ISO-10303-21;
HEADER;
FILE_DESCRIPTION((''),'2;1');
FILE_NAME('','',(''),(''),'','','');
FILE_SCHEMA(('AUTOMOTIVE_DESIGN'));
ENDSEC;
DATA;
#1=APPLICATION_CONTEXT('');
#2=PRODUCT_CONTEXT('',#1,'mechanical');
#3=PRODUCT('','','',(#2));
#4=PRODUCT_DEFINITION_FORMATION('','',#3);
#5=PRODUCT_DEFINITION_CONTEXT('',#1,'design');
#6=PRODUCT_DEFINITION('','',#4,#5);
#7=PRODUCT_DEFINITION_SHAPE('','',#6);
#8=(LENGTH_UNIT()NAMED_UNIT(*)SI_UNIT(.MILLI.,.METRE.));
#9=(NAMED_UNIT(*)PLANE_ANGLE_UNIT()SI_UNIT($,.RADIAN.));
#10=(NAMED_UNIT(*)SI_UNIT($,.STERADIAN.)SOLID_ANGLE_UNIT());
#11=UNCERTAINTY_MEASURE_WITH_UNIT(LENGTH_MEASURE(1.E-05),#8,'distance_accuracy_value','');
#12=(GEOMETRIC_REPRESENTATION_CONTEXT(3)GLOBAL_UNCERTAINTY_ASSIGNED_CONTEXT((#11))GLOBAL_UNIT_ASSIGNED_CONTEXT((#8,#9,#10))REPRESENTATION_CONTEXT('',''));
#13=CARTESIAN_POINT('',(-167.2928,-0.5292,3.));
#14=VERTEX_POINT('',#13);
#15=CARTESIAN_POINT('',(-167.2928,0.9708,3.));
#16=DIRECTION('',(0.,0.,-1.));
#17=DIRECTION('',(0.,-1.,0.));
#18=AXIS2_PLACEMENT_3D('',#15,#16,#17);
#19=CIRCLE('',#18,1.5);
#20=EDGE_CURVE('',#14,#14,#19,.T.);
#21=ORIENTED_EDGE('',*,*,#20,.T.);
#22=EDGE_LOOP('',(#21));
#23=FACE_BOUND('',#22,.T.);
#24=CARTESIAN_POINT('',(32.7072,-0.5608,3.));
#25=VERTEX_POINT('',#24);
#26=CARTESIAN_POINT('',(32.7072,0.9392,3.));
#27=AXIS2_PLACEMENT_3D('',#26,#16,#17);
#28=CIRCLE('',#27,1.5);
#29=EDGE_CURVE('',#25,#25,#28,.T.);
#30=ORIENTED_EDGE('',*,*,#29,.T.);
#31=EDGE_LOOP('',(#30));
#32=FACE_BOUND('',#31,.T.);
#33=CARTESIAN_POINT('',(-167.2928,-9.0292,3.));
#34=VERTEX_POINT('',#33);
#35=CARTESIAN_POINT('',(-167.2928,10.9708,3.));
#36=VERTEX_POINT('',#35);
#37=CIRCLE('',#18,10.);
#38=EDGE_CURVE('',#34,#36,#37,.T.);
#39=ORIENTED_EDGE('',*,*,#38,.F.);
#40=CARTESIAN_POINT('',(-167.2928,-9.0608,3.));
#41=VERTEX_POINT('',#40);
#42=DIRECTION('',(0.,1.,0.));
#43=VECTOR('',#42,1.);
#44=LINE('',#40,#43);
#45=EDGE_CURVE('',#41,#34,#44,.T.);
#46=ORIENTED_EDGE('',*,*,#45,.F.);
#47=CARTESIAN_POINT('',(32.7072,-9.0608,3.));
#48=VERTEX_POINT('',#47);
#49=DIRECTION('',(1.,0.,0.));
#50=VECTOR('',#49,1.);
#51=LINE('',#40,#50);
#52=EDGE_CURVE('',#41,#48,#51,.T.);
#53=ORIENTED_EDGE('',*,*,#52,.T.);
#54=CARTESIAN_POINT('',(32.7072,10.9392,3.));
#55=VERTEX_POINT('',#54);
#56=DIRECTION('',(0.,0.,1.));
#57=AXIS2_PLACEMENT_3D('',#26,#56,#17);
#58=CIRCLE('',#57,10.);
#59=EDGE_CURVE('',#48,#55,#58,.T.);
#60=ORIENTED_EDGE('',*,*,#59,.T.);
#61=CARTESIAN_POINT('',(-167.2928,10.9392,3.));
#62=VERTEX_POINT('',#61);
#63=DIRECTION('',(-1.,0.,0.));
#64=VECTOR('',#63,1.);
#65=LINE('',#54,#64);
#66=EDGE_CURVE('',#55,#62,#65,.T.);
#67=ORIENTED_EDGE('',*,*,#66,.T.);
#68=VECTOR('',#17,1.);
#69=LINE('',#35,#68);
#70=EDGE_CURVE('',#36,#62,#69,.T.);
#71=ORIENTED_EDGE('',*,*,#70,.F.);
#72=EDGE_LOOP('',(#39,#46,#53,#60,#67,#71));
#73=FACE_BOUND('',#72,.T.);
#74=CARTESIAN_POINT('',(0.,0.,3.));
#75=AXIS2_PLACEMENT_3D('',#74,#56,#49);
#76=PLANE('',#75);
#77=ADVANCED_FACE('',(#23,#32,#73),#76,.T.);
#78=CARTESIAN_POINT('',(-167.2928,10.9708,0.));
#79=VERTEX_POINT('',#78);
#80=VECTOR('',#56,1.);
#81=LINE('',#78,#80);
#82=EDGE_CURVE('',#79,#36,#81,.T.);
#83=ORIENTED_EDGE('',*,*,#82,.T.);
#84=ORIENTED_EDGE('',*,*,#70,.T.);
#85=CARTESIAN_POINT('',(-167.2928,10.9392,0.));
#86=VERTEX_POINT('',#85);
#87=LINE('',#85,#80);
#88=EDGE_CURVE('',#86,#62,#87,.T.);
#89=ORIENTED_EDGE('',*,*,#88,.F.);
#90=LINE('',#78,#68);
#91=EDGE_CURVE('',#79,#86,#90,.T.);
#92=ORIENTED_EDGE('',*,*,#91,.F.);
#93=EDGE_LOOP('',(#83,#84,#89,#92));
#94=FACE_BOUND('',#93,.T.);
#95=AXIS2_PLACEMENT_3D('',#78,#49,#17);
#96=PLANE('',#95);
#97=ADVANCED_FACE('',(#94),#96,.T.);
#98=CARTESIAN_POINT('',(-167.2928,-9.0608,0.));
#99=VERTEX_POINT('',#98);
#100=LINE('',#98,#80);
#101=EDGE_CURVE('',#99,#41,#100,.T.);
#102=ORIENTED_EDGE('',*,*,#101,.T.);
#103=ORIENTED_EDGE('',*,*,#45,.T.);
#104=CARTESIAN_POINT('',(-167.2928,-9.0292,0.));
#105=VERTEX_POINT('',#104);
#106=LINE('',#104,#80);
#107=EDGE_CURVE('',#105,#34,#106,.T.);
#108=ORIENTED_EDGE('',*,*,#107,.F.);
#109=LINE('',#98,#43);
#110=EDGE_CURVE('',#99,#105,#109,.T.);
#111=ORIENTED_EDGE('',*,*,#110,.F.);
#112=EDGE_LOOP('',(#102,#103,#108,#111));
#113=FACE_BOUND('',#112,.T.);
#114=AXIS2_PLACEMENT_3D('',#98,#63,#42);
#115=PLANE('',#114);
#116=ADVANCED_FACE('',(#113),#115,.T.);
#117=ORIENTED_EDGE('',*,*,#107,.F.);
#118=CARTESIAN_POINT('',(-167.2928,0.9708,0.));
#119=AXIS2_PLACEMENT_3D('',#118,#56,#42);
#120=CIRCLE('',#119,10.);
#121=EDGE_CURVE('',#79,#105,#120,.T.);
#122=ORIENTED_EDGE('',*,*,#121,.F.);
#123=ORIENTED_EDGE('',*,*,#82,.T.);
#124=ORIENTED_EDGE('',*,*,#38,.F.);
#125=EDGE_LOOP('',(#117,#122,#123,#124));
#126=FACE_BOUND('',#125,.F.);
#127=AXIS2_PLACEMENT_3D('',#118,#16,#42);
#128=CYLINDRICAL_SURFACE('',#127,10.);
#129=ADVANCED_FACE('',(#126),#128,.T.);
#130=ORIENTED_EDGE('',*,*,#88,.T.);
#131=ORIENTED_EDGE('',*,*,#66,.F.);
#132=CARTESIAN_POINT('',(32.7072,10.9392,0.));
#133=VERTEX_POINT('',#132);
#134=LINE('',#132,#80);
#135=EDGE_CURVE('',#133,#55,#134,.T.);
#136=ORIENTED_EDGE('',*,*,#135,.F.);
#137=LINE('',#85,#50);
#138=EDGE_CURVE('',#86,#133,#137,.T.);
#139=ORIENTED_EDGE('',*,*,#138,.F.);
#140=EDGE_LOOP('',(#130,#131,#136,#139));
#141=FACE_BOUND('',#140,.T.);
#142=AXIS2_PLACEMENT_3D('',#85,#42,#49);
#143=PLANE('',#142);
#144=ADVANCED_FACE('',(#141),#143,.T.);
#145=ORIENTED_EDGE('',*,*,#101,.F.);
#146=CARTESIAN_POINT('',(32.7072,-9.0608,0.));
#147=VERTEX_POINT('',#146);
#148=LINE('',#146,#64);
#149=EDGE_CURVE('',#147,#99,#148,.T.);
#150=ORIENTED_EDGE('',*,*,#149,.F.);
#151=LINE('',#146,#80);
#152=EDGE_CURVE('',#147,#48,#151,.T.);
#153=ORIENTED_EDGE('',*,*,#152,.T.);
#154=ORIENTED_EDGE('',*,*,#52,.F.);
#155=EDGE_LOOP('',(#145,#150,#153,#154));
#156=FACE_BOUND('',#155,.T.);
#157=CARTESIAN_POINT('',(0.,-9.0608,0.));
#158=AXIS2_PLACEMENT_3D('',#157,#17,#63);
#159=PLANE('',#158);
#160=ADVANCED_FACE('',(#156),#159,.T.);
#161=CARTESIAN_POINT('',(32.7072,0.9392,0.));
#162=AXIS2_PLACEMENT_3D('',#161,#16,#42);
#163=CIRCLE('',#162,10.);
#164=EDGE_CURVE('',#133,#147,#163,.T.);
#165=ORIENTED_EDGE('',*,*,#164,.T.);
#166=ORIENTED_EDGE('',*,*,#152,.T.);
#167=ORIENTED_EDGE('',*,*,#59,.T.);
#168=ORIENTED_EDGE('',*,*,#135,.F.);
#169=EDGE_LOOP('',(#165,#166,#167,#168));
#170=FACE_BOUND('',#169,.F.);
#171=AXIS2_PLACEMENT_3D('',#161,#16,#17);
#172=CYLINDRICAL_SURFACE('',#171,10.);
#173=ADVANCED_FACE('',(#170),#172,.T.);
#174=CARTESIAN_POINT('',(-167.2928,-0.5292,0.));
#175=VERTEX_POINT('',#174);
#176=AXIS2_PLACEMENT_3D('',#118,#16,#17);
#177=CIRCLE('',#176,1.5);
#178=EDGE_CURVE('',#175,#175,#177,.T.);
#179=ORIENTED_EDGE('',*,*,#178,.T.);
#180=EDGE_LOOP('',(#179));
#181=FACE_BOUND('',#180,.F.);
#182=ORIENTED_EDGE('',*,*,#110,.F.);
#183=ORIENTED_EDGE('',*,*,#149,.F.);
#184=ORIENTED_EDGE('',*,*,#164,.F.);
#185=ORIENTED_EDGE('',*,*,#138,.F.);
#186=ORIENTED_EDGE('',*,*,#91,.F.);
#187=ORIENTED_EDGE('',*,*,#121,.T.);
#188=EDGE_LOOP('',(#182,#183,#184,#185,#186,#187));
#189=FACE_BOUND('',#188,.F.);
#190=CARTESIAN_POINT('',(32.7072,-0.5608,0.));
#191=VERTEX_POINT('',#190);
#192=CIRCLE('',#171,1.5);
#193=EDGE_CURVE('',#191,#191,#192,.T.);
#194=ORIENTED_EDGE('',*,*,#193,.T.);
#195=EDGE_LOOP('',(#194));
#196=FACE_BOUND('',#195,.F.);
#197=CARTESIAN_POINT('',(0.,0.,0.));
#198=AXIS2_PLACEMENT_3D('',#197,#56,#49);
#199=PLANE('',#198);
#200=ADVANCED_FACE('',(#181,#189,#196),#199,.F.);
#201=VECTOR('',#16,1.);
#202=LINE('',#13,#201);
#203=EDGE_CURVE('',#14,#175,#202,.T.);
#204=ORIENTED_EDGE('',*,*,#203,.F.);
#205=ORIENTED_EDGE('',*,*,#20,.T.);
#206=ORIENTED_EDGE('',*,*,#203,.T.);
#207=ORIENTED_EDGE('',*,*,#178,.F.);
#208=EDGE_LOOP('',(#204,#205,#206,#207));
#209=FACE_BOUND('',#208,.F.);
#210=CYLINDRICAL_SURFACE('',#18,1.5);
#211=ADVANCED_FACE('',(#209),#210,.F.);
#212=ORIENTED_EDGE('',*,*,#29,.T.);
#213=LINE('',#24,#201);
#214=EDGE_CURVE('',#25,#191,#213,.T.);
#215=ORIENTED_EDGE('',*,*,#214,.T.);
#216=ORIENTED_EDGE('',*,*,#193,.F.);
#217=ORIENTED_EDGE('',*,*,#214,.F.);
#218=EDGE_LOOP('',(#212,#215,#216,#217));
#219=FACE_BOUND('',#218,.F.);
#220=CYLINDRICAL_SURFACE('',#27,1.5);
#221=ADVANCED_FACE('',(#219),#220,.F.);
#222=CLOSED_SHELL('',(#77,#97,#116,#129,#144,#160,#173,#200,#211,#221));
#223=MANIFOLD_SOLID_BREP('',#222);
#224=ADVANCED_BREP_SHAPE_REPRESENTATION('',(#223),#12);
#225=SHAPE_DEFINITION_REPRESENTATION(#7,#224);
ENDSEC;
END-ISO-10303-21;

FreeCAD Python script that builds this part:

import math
import FreeCAD as App
import Part
import Sketcher

V = App.Vector

doc = App.newDocument("Part")
params = doc.addObject("Spreadsheet::Sheet", "Params")
for row, (alias, value) in enumerate([
    ("sketch1_radius", "10 mm"),
    ("sketch1_width", "200 mm"),
    ("pad1_length", "3 mm"),
    ("sketch2_diameter", "3 mm"),
    ("hole_diameter", "3 mm"),
    ("hole_depth", "57.1 mm"),
], start=1):
    params.set(f"A{row}", alias)
    params.set(f"B{row}", "=" + value)
    params.setAlias(f"B{row}", alias)

body = doc.addObject("PartDesign::Body", "Body")

# Sketch on XY plane
sketch1 = doc.addObject("Sketcher::SketchObject", "Sketch")
body.addObject(sketch1)
sketch1.AttachmentSupport = (doc.XY_Plane, [""])
sketch1.MapMode = "FlatFace"
sketch1.addGeometry([
    Part.ArcOfCircle(Part.Circle(V(-167.2928, 0.9708, 0), V(0, 0, 1), 10), math.radians(90), math.radians(270)),  # 0
    Part.LineSegment(V(-167.2928, -9.0292, 0), V(-167.2928, -9.0608, 0)),  # 1
    Part.LineSegment(V(-167.2928, -9.0608, 0), V(32.7072, -9.0608, 0)),  # 2
    Part.ArcOfCircle(Part.Circle(V(32.7072, 0.9392, 0), V(0, 0, 1), 10), math.radians(-90), math.radians(90)),  # 3
    Part.LineSegment(V(32.7072, 10.9392, 0), V(-167.2928, 10.9392, 0)),  # 4
    Part.LineSegment(V(-167.2928, 10.9392, 0), V(-167.2928, 10.9708, 0)),  # 5
], False)
sketch1.addConstraint([
    Sketcher.Constraint("Coincident", 0, 2, 1, 1),
    Sketcher.Constraint("Coincident", 1, 2, 2, 1),
    Sketcher.Constraint("Tangent", 2, 2, 3, 1),
    Sketcher.Constraint("Tangent", 3, 2, 4, 1),
    Sketcher.Constraint("Coincident", 4, 2, 5, 1),
    Sketcher.Constraint("Coincident", 5, 2, 0, 1),
    Sketcher.Constraint("Vertical", 1),
    Sketcher.Constraint("Horizontal", 2),
    Sketcher.Constraint("Horizontal", 4),
    Sketcher.Constraint("Vertical", 5),
    Sketcher.Constraint("Equal", 0, 3),
    Sketcher.Constraint("Vertical", 1, 2, 4, 2),
    Sketcher.Constraint("Radius", 0, 10.0),
    Sketcher.Constraint("DistanceX", 2, 1, 2, 2, 200.0),
    Sketcher.Constraint("DistanceX", 0, 3, 3, 3, 200.0),
    Sketcher.Constraint("DistanceY", 1, 2, 1, 1, 0.0316),
    Sketcher.Constraint("DistanceX", 0, 3, -1, 1, 167.2928),
    Sketcher.Constraint("DistanceY", -1, 1, 0, 3, 0.9708),
])
sketch1.setExpression("Constraints[12]", "Params.sketch1_radius")
sketch1.setExpression("Constraints[13]", "Params.sketch1_width")
pad1 = doc.addObject("PartDesign::Pad", "Pad")
body.addObject(pad1)
pad1.Profile = sketch1
pad1.setExpression("Length", "Params.pad1_length")

# Sketch on XY plane
sketch2 = doc.addObject("Sketcher::SketchObject", "Sketch001")
body.addObject(sketch2)
sketch2.AttachmentSupport = (doc.XY_Plane, [""])
sketch2.MapMode = "FlatFace"
sketch2.AttachmentOffset = App.Placement(V(0, 0, 3), App.Rotation())
sketch2.addGeometry([
    Part.Circle(V(-167.2928, 0.9708, 0), V(0, 0, 1), 1.5),
    Part.Circle(V(32.7072, 0.9392, 0), V(0, 0, 1), 1.5),
], False)
sketch2.addConstraint([
    Sketcher.Constraint("Equal", 0, 1),
    Sketcher.Constraint("Diameter", 0, 3.0),
    Sketcher.Constraint("DistanceX", 0, 3, 1, 3, 200.0),
    Sketcher.Constraint("DistanceX", 0, 3, -1, 1, 167.2928),
    Sketcher.Constraint("DistanceY", -1, 1, 0, 3, 0.9708),
    Sketcher.Constraint("DistanceY", -1, 1, 1, 3, 0.9392),
])
sketch2.setExpression("Constraints[1]", "Params.sketch2_diameter")
doc.recompute()
hole = doc.addObject("PartDesign::Hole", "Hole")
body.addObject(hole)
hole.Profile = sketch2
hole.ThreadType = "None"
hole.setExpression("Diameter", "Params.hole_diameter")
hole.DepthType = "Dimension"
hole.setExpression("Depth", "Params.hole_depth")
hole.DrillPoint = "Angled"
hole.DrillPointAngle = 118

doc.recompute()
